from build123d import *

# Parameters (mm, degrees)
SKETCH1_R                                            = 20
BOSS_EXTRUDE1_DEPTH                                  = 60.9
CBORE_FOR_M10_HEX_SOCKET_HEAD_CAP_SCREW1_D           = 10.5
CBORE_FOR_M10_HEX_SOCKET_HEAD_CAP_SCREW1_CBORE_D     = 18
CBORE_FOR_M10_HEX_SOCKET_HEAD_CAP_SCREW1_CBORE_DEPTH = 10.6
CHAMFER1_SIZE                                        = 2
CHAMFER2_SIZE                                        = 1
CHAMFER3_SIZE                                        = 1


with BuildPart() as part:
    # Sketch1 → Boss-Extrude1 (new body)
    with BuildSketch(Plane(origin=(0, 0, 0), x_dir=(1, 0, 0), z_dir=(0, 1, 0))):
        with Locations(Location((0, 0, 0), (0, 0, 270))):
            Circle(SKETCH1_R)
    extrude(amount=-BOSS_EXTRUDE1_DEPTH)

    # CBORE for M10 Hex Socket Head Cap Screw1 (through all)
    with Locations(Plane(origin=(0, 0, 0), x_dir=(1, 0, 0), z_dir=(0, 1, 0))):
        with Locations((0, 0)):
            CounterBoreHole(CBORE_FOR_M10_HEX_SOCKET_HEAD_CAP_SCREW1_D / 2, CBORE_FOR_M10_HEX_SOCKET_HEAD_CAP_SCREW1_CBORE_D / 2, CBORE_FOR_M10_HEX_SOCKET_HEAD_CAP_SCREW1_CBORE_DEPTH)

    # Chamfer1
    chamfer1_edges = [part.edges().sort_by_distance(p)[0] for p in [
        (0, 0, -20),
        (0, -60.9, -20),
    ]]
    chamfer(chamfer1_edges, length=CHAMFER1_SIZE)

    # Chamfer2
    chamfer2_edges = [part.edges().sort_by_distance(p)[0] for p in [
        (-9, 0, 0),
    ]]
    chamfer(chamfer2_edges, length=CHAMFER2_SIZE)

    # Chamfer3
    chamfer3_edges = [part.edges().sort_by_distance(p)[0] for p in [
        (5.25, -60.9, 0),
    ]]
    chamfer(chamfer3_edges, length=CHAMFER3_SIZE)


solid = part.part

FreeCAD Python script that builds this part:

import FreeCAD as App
import Part
import Sketcher

V = App.Vector


def edges_at(feature, points):
    """Names of the edges that pass closest to the given points."""
    edges = feature.Shape.Edges
    near = lambda p: min(range(len(edges)), key=lambda i: edges[i].distToShape(Part.Vertex(*p))[0])
    return sorted({f"Edge{near(p) + 1}" for p in points})

doc = App.newDocument("Part")
body = doc.addObject("PartDesign::Body", "Body")

# Sketch on XZ plane
sketch1 = body.newObject("Sketcher::SketchObject", "Sketch")
sketch1.AttachmentSupport = (doc.getObject("XZ_Plane"), [""])
sketch1.MapMode = "FlatFace"
sketch1.addGeometry(Part.Circle(V(0, 0, 0), V(0, 0, 1), 20), False)
sketch1.addConstraint(Sketcher.Constraint("Coincident", 0, 3, -1, 1))
sketch1.addConstraint(Sketcher.Constraint("Diameter", 0, 40.0))
pad1 = body.newObject("PartDesign::Pad", "Pad")
pad1.Profile = sketch1
pad1.Length = 60.9

# Sketch on XZ plane
sketch2 = body.newObject("Sketcher::SketchObject", "Sketch001")
sketch2.AttachmentSupport = (doc.getObject("XZ_Plane"), [""])
sketch2.MapMode = "FlatFace"
sketch2.addGeometry(Part.Circle(V(0, 0, 0), V(0, 0, 1), 5), False)
sketch2.addConstraint(Sketcher.Constraint("Coincident", 0, 3, -1, 1))
sketch2.addConstraint(Sketcher.Constraint("Diameter", 0, 10.5))
doc.recompute()
hole = body.newObject("PartDesign::Hole", "Hole")
hole.Profile = sketch2
hole.ThreadType = "None"
hole.Diameter = 10.5
hole.DepthType = "ThroughAll"
hole.HoleCutType = "Counterbore"
hole.HoleCutDiameter = 18
hole.HoleCutDepth = 10.6
hole.Reversed = True
doc.recompute()

chamfer = body.newObject("PartDesign::Chamfer", "Chamfer")
chamfer.Base = (hole, edges_at(hole, [(0, 0, -20), (0, -60.9, -20)]))
chamfer.Size = 2
doc.recompute()

chamfer2 = body.newObject("PartDesign::Chamfer", "Chamfer001")
chamfer2.Base = (chamfer, edges_at(chamfer, [(-9, 0, 0)]))
chamfer2.Size = 1
doc.recompute()

chamfer3 = body.newObject("PartDesign::Chamfer", "Chamfer002")
chamfer3.Base = (chamfer2, edges_at(chamfer2, [(5.25, -60.9, 0)]))
chamfer3.Size = 1

doc.recompute()
